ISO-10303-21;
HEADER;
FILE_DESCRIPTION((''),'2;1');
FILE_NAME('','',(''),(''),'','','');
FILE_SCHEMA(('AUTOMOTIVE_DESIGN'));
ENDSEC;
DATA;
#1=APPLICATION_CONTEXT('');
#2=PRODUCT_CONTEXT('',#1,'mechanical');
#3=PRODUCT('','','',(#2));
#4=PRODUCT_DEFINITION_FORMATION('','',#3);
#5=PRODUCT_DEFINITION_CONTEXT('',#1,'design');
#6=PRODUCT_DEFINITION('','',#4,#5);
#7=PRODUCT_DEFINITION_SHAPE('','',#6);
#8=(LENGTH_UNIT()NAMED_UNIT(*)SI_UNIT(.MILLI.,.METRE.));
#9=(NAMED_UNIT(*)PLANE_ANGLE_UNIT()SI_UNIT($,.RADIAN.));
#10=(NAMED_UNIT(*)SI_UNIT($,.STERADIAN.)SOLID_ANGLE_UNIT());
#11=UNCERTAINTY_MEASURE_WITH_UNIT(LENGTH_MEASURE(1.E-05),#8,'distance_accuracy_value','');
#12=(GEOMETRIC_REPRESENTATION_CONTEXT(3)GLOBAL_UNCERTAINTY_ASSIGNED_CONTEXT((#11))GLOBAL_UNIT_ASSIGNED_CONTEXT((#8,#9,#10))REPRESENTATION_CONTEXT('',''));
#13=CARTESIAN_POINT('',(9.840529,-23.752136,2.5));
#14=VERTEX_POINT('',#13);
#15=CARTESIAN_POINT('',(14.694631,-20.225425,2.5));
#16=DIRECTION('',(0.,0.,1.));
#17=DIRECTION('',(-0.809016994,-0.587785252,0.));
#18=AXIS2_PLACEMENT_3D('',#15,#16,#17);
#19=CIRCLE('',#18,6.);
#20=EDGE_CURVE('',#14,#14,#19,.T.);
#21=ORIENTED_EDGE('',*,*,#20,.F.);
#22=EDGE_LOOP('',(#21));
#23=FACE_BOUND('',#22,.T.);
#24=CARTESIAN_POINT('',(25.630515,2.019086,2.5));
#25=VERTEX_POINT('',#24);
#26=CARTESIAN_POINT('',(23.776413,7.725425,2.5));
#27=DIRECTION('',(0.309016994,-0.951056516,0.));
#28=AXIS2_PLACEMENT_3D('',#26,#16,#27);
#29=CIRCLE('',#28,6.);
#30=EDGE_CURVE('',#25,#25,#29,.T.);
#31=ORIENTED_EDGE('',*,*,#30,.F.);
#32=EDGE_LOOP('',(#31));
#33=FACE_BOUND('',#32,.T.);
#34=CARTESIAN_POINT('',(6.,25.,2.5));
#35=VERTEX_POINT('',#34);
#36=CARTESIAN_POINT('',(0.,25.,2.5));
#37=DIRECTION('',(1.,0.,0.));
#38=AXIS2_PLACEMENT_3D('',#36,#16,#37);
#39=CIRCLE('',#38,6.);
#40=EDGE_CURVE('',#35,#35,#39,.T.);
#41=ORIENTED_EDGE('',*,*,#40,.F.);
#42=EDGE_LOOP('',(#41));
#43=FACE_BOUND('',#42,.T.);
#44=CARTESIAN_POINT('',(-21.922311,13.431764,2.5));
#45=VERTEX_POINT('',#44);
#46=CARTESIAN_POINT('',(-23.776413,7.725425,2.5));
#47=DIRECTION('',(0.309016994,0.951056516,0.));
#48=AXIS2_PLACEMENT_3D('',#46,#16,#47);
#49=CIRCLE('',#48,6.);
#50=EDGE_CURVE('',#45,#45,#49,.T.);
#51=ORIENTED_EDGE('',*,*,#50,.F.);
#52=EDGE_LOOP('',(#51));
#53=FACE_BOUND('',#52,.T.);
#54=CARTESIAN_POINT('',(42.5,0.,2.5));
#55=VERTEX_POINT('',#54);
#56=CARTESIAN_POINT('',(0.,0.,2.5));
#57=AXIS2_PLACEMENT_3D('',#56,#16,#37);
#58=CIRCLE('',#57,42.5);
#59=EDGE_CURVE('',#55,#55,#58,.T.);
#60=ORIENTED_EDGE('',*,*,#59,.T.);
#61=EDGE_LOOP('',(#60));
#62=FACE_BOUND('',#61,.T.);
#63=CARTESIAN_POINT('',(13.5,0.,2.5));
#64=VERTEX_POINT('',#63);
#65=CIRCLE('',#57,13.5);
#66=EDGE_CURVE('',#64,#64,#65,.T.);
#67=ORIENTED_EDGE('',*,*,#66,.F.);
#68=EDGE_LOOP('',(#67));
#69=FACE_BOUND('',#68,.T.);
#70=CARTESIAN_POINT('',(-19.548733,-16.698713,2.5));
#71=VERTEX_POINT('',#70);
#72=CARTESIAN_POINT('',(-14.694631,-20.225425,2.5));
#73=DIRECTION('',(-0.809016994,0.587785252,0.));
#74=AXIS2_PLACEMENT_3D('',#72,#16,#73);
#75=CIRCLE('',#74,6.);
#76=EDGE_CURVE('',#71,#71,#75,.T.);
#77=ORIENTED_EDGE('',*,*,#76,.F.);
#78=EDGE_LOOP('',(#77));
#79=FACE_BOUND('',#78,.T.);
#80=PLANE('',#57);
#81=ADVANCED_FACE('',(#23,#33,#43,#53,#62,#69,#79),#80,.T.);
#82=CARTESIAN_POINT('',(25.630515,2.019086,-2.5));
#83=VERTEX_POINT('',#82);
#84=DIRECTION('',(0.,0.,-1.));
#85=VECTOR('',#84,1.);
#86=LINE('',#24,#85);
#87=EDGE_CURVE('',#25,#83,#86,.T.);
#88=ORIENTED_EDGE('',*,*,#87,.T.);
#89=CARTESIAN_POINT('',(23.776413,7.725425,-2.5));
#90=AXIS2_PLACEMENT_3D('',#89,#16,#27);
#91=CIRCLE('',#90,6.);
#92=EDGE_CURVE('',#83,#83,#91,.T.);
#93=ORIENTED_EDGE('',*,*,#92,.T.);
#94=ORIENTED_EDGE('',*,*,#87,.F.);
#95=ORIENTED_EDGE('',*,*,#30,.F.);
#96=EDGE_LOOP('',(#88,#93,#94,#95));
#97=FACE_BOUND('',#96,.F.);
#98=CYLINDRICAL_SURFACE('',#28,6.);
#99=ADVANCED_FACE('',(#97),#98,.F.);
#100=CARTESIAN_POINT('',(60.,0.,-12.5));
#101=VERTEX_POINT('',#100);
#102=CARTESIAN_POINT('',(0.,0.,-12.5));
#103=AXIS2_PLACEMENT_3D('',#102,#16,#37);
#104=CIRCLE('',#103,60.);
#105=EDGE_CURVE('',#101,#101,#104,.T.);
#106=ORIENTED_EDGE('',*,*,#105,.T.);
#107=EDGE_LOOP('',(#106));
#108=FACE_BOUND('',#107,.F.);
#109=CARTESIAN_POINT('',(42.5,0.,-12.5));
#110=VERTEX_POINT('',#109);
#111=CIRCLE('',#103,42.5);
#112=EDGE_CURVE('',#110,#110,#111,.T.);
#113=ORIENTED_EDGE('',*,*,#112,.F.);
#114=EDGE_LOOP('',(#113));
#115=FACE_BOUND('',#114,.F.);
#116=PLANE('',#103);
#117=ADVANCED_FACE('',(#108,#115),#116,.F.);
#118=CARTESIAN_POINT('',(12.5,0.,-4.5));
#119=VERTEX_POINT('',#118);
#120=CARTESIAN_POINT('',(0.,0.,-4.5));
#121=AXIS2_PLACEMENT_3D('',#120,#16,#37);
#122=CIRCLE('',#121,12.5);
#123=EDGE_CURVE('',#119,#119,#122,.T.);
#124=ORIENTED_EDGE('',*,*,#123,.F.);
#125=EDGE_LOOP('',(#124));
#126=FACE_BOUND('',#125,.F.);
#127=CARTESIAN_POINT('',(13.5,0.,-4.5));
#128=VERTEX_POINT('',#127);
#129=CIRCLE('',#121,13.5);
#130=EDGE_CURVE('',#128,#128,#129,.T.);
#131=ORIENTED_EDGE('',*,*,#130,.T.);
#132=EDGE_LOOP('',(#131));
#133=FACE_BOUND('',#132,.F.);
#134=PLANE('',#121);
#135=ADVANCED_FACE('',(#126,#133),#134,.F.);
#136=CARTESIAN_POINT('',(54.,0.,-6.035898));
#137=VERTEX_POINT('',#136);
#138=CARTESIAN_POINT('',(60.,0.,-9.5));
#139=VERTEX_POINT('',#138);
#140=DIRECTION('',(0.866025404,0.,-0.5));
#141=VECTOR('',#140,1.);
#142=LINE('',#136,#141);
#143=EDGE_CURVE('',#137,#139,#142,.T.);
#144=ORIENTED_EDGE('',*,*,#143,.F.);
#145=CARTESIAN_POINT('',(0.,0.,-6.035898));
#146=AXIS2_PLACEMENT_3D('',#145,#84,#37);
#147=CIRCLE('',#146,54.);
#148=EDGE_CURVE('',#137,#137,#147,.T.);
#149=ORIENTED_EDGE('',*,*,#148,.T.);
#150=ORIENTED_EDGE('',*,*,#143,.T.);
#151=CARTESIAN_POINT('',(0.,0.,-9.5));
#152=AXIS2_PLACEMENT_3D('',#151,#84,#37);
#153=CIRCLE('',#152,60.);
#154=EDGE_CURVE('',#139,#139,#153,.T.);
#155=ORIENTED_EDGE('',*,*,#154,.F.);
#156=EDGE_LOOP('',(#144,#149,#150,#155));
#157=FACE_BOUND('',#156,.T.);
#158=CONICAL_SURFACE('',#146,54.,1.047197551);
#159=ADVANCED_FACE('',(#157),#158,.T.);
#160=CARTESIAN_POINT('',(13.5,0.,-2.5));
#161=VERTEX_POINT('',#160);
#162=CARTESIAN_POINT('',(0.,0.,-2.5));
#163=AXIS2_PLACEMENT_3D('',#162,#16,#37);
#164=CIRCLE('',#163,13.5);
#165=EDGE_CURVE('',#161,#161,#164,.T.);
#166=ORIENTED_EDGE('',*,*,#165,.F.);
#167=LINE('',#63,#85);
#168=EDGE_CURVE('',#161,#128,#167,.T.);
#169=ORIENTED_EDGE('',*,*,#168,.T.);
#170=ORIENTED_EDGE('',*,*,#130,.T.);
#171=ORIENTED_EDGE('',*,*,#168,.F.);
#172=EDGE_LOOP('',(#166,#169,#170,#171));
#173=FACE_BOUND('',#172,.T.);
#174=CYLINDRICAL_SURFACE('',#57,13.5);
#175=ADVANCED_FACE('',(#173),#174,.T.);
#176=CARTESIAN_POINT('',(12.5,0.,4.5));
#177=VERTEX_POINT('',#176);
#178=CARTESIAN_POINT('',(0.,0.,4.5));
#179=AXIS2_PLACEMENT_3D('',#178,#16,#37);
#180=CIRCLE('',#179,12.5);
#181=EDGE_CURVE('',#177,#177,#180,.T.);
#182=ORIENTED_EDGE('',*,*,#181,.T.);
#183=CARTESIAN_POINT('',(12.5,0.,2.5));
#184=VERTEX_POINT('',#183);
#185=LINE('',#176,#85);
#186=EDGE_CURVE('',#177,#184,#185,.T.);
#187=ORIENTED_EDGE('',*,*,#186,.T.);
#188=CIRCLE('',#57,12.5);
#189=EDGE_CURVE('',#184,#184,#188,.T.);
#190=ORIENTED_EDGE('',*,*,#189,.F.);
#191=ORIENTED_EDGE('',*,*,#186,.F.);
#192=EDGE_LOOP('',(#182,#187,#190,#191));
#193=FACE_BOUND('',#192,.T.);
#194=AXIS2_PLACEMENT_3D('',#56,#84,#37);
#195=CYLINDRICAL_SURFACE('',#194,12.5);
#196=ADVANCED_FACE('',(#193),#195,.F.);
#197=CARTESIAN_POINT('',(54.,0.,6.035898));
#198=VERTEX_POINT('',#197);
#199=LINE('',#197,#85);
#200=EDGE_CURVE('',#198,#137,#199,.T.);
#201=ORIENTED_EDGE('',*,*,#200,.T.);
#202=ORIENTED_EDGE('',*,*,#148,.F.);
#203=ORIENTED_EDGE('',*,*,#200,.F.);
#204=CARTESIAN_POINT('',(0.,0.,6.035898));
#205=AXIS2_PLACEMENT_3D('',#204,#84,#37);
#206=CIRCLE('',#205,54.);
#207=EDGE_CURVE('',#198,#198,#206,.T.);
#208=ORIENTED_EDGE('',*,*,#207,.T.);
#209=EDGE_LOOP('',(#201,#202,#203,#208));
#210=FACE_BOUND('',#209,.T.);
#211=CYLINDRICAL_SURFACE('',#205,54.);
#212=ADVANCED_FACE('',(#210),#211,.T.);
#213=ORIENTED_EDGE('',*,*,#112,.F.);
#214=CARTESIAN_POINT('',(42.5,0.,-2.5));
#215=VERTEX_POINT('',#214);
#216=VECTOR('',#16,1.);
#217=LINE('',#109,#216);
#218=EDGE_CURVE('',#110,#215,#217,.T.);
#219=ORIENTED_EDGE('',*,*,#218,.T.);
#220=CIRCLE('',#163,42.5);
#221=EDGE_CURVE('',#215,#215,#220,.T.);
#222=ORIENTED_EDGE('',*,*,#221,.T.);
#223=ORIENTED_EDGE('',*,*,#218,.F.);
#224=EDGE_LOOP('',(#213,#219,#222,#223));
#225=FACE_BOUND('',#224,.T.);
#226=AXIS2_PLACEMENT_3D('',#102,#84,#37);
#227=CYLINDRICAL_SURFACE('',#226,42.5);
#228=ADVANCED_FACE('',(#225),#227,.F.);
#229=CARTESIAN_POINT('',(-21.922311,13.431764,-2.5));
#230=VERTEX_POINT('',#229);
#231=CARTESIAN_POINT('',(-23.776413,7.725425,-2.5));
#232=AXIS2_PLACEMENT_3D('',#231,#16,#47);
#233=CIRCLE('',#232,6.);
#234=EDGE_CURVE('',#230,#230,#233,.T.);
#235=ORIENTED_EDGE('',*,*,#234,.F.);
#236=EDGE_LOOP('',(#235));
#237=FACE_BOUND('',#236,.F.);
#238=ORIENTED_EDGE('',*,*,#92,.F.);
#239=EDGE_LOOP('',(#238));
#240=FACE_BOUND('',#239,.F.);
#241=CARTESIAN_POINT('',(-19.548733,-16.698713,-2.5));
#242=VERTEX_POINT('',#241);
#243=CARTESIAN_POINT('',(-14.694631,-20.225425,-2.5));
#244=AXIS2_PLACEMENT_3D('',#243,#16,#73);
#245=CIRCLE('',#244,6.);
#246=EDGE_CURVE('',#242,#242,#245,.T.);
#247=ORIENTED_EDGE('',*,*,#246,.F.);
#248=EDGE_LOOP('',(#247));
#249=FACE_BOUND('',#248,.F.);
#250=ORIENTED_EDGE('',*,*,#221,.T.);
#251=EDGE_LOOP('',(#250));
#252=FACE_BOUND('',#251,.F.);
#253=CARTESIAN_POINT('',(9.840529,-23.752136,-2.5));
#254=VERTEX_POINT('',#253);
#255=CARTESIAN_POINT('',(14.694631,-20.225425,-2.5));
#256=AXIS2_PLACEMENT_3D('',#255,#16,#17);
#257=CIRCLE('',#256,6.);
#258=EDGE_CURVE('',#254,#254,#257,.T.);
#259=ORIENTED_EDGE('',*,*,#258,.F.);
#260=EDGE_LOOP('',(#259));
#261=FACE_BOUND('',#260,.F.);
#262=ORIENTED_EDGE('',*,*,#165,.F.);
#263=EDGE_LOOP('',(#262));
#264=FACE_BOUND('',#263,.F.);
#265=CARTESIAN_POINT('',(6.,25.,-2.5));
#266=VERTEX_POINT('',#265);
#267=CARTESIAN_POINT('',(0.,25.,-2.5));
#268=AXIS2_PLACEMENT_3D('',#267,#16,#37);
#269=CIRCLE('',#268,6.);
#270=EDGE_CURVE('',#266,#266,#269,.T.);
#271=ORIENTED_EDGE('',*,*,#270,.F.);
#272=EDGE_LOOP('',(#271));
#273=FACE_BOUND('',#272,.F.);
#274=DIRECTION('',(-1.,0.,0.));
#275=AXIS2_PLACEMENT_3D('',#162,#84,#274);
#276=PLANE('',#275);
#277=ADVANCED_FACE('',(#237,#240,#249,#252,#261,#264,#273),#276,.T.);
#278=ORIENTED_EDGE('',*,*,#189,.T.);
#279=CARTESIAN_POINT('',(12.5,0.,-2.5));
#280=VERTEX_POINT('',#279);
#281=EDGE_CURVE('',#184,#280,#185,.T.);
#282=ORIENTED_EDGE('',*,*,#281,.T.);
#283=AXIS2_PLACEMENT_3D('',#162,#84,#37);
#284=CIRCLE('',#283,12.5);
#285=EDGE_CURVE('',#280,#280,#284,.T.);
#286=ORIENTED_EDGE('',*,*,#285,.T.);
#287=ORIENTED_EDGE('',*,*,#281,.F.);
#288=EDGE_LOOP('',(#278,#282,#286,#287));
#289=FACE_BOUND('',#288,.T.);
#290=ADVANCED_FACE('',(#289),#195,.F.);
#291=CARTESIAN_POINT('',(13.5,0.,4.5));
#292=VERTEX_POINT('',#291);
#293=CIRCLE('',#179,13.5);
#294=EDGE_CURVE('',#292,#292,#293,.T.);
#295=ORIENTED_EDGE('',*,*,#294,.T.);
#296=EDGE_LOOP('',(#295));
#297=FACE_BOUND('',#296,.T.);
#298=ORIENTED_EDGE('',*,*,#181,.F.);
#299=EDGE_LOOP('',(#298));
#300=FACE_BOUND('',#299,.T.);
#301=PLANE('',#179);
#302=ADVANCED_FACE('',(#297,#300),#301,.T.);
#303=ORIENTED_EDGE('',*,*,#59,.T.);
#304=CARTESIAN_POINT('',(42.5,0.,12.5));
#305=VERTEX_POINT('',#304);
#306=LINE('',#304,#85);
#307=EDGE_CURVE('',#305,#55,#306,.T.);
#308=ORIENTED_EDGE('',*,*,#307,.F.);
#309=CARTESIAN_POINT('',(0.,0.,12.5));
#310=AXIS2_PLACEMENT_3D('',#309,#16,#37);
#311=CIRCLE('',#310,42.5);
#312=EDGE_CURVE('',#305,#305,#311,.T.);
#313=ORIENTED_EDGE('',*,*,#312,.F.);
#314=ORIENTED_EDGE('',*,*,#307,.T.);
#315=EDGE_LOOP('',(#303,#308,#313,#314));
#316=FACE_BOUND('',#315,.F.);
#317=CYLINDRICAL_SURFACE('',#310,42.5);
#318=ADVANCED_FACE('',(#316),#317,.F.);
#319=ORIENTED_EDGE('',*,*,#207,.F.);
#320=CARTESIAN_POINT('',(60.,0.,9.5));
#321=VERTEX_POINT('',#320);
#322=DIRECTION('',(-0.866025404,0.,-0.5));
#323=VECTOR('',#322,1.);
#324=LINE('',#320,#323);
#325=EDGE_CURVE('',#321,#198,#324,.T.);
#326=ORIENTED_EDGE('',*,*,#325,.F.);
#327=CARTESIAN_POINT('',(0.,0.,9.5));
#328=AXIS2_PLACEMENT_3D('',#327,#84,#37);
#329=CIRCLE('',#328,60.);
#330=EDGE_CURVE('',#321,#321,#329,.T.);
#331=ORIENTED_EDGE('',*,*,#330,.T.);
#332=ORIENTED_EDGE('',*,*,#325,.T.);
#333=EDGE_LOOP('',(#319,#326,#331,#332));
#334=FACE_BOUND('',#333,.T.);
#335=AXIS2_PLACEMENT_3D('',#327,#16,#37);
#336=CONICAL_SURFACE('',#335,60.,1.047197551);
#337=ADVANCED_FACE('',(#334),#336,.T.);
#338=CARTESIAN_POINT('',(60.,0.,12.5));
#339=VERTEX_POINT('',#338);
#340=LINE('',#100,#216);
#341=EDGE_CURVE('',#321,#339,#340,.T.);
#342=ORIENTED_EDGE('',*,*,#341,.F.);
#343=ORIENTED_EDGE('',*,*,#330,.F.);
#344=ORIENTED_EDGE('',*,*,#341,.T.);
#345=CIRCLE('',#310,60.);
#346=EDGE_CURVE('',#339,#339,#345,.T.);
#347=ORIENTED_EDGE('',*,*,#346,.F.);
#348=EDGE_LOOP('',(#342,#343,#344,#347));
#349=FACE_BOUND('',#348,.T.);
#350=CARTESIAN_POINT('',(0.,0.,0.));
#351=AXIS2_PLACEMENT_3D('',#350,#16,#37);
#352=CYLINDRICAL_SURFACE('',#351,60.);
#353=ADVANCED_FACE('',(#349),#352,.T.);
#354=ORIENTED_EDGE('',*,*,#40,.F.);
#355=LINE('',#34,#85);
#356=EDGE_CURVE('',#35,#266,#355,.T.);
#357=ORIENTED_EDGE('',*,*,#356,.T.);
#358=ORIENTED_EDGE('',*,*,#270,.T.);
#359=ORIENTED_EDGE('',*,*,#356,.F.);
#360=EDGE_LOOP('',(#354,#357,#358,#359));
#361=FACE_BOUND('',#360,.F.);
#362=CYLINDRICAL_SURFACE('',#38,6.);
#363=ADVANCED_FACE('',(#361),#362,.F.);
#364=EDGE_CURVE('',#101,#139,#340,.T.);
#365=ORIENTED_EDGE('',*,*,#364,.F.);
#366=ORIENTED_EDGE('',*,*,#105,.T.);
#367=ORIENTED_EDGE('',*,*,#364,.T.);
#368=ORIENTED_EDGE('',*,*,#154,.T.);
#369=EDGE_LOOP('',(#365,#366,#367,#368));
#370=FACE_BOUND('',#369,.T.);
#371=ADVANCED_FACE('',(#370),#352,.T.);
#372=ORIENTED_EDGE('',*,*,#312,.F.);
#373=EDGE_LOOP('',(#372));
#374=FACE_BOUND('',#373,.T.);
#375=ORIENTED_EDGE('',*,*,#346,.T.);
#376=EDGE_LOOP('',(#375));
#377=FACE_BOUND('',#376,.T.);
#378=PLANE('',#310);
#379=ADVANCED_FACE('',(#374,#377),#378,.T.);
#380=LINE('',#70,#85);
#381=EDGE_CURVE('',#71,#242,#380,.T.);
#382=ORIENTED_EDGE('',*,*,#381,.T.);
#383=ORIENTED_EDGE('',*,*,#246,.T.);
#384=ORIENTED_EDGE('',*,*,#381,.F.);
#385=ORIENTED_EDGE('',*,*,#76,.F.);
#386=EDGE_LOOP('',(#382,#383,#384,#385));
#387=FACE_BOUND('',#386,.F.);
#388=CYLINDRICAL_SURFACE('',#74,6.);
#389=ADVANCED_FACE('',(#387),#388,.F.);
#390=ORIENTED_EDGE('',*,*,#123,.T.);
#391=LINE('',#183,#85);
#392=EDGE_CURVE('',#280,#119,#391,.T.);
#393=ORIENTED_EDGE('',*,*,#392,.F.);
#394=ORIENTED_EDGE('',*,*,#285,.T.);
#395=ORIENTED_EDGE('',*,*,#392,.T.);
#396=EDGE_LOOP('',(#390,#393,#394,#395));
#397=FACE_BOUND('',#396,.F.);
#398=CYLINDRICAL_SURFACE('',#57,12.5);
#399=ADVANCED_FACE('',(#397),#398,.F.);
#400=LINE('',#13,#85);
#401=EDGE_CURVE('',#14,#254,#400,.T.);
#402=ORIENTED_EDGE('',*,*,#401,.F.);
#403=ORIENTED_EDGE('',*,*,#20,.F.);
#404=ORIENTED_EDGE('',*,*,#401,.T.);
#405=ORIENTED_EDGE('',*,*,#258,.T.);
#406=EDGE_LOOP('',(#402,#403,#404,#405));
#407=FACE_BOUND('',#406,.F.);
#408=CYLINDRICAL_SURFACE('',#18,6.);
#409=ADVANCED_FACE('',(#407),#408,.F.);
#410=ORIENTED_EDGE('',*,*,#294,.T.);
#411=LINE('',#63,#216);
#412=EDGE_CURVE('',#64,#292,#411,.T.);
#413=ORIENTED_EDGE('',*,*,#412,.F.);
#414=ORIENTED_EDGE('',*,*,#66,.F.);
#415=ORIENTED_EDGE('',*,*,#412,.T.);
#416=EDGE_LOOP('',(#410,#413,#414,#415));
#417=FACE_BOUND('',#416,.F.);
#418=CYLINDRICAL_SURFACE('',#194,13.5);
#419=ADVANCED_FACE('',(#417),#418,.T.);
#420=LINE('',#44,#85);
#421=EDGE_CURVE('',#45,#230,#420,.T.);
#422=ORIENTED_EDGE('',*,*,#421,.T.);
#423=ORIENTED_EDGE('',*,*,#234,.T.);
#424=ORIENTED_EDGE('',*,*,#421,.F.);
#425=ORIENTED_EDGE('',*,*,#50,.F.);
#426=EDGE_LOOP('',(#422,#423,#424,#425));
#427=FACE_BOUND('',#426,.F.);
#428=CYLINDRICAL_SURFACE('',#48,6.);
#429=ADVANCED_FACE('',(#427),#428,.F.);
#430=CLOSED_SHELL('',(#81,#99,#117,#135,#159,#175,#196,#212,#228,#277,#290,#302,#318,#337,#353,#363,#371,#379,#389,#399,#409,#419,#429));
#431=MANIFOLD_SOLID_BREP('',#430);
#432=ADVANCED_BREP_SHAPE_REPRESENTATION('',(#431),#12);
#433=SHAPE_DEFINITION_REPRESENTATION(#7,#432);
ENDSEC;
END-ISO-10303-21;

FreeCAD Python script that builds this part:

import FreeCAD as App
import Part
import Sketcher
Q = App.Units.Quantity


def add_polygon(sketch, points):
    """Adds a closed chain of lines whose ends are joined by coincident constraints."""
    first, n = sketch.GeometryCount, len(points)
    for a, b in zip(points, points[1:] + points[:1]):
        sketch.addGeometry(Part.LineSegment(App.Vector(*a, 0), App.Vector(*b, 0)), False)
    for i in range(n):
        sketch.addConstraint(Sketcher.Constraint("Coincident", first + i, 2, first + (i + 1) % n, 1))

doc = App.newDocument("Part")
body = doc.addObject("PartDesign::Body", "Body")

sketch1 = body.newObject("Sketcher::SketchObject", "Sketch")
sketch1.AttachmentSupport = (doc.getObject("XY_Plane"), [""])
sketch1.MapMode = "FlatFace"
sketch1.addGeometry([
    Part.Circle(App.Vector(0, 0, 0), App.Vector(0, 0, 1), 60),
    Part.Circle(App.Vector(0, 0, 0), App.Vector(0, 0, 1), 12),
], False)
sketch1.addConstraint([
    Sketcher.Constraint("Coincident", 0, 3, -1, 1),
    Sketcher.Constraint("Coincident", 1, 3, -1, 1),
    Sketcher.Constraint("Diameter", 0, 120.0),
    Sketcher.Constraint("Diameter", 1, 25.0),
])
pad1 = body.newObject("PartDesign::Pad", "Pad")
pad1.Profile = sketch1
pad1.Length = 25
pad1.Midplane = True

sketch2 = body.newObject("Sketcher::SketchObject", "Sketch001")
sketch2.AttachmentSupport = (doc.getObject("XY_Plane"), [""])
sketch2.MapMode = "FlatFace"
sketch2.AttachmentOffset = App.Placement(App.Vector(0, 0, 12.5), App.Rotation())
sketch2.addGeometry(Part.Circle(App.Vector(0, 0, 0), App.Vector(0, 0, 1), 42), False)
sketch2.addConstraint([
    Sketcher.Constraint("Coincident", 0, 3, -1, 1),
    Sketcher.Constraint("Diameter", 0, 85.0),
])
pocket1 = body.newObject("PartDesign::Pocket", "Pocket")
pocket1.Profile = sketch2
pocket1.Length = 10
doc.recompute()

mirrored = body.newObject("PartDesign::Mirrored", "Mirrored")
mirrored.Originals = [pocket1]
mirrored.MirrorPlane = (doc.getObject("XY_Plane"), [""])
body.Tip = mirrored

sketch3 = body.newObject("Sketcher::SketchObject", "Sketch002")
sketch3.AttachmentSupport = (doc.getObject("XY_Plane"), [""])
sketch3.MapMode = "FlatFace"
sketch3.AttachmentOffset = App.Placement(App.Vector(0, 0, 2.5), App.Rotation())
sketch3.addGeometry(Part.Circle(App.Vector(0, 25, 0), App.Vector(0, 0, 1), 6), False)
sketch3.addConstraint([
    Sketcher.Constraint("PointOnObject", 0, 3, -2),
    Sketcher.Constraint("Diameter", 0, 12.0),
    Sketcher.Constraint("DistanceY", -1, 1, 0, 3, 25.0),
])
pocket2 = body.newObject("PartDesign::Pocket", "Pocket001")
pocket2.Profile = sketch3
pocket2.Length = 10
doc.recompute()

polarpattern = body.newObject("PartDesign::PolarPattern", "PolarPattern")
polarpattern.Originals = [pocket2]
polarpattern.Axis = (doc.getObject("Z_Axis"), [""])
polarpattern.Angle = 360
polarpattern.Occurrences = 5
body.Tip = polarpattern

sketch4 = body.newObject("Sketcher::SketchObject", "Sketch003")
sketch4.AttachmentSupport = (doc.getObject("XZ_Plane"), [""])
sketch4.MapMode = "FlatFace"
add_polygon(sketch4, [(60, 10), (60, -10), (54, -6), (54, 6)])
sketch4.addConstraint([
    Sketcher.Constraint("Vertical", 0),
    Sketcher.Constraint("Vertical", 2),
    Sketcher.Constraint("Equal", 1, 3),
    Sketcher.Constraint("DistanceY", 0, 2, 0, 1, 19.0),
    Sketcher.Constraint("Angle", 1, Q("150 deg")),
    Sketcher.Constraint("DistanceX", -1, 1, 0, 2, 60.0),
    Sketcher.Constraint("DistanceX", -1, 1, 1, 2, 54.0),
    Sketcher.Constraint("DistanceY", 0, 2, -1, 1, 9.5),
])
groove = body.newObject("PartDesign::Groove", "Groove")
groove.Profile = sketch4
groove.ReferenceAxis = (sketch4, ["V_Axis"])
groove.Angle = 360

sketch5 = body.newObject("Sketcher::SketchObject", "Sketch004")
sketch5.AttachmentSupport = (doc.getObject("XY_Plane"), [""])
sketch5.MapMode = "FlatFace"
sketch5.AttachmentOffset = App.Placement(App.Vector(0, 0, 2.5), App.Rotation())
sketch5.addGeometry([
    Part.Circle(App.Vector(0, 0, 0), App.Vector(0, 0, 1), 14),
    Part.Circle(App.Vector(0, 0, 0), App.Vector(0, 0, 1), 12),
], False)
sketch5.addConstraint([
    Sketcher.Constraint("Coincident", 0, 3, -1, 1),
    Sketcher.Constraint("Coincident", 1, 3, -1, 1),
    Sketcher.Constraint("Diameter", 0, 27.0),
    Sketcher.Constraint("Diameter", 1, 25.0),
])
pad2 = body.newObject("PartDesign::Pad", "Pad001")
pad2.Profile = sketch5
pad2.Type = "TwoLengths"
pad2.Length = 2
pad2.Length2 = 7

doc.recompute()
